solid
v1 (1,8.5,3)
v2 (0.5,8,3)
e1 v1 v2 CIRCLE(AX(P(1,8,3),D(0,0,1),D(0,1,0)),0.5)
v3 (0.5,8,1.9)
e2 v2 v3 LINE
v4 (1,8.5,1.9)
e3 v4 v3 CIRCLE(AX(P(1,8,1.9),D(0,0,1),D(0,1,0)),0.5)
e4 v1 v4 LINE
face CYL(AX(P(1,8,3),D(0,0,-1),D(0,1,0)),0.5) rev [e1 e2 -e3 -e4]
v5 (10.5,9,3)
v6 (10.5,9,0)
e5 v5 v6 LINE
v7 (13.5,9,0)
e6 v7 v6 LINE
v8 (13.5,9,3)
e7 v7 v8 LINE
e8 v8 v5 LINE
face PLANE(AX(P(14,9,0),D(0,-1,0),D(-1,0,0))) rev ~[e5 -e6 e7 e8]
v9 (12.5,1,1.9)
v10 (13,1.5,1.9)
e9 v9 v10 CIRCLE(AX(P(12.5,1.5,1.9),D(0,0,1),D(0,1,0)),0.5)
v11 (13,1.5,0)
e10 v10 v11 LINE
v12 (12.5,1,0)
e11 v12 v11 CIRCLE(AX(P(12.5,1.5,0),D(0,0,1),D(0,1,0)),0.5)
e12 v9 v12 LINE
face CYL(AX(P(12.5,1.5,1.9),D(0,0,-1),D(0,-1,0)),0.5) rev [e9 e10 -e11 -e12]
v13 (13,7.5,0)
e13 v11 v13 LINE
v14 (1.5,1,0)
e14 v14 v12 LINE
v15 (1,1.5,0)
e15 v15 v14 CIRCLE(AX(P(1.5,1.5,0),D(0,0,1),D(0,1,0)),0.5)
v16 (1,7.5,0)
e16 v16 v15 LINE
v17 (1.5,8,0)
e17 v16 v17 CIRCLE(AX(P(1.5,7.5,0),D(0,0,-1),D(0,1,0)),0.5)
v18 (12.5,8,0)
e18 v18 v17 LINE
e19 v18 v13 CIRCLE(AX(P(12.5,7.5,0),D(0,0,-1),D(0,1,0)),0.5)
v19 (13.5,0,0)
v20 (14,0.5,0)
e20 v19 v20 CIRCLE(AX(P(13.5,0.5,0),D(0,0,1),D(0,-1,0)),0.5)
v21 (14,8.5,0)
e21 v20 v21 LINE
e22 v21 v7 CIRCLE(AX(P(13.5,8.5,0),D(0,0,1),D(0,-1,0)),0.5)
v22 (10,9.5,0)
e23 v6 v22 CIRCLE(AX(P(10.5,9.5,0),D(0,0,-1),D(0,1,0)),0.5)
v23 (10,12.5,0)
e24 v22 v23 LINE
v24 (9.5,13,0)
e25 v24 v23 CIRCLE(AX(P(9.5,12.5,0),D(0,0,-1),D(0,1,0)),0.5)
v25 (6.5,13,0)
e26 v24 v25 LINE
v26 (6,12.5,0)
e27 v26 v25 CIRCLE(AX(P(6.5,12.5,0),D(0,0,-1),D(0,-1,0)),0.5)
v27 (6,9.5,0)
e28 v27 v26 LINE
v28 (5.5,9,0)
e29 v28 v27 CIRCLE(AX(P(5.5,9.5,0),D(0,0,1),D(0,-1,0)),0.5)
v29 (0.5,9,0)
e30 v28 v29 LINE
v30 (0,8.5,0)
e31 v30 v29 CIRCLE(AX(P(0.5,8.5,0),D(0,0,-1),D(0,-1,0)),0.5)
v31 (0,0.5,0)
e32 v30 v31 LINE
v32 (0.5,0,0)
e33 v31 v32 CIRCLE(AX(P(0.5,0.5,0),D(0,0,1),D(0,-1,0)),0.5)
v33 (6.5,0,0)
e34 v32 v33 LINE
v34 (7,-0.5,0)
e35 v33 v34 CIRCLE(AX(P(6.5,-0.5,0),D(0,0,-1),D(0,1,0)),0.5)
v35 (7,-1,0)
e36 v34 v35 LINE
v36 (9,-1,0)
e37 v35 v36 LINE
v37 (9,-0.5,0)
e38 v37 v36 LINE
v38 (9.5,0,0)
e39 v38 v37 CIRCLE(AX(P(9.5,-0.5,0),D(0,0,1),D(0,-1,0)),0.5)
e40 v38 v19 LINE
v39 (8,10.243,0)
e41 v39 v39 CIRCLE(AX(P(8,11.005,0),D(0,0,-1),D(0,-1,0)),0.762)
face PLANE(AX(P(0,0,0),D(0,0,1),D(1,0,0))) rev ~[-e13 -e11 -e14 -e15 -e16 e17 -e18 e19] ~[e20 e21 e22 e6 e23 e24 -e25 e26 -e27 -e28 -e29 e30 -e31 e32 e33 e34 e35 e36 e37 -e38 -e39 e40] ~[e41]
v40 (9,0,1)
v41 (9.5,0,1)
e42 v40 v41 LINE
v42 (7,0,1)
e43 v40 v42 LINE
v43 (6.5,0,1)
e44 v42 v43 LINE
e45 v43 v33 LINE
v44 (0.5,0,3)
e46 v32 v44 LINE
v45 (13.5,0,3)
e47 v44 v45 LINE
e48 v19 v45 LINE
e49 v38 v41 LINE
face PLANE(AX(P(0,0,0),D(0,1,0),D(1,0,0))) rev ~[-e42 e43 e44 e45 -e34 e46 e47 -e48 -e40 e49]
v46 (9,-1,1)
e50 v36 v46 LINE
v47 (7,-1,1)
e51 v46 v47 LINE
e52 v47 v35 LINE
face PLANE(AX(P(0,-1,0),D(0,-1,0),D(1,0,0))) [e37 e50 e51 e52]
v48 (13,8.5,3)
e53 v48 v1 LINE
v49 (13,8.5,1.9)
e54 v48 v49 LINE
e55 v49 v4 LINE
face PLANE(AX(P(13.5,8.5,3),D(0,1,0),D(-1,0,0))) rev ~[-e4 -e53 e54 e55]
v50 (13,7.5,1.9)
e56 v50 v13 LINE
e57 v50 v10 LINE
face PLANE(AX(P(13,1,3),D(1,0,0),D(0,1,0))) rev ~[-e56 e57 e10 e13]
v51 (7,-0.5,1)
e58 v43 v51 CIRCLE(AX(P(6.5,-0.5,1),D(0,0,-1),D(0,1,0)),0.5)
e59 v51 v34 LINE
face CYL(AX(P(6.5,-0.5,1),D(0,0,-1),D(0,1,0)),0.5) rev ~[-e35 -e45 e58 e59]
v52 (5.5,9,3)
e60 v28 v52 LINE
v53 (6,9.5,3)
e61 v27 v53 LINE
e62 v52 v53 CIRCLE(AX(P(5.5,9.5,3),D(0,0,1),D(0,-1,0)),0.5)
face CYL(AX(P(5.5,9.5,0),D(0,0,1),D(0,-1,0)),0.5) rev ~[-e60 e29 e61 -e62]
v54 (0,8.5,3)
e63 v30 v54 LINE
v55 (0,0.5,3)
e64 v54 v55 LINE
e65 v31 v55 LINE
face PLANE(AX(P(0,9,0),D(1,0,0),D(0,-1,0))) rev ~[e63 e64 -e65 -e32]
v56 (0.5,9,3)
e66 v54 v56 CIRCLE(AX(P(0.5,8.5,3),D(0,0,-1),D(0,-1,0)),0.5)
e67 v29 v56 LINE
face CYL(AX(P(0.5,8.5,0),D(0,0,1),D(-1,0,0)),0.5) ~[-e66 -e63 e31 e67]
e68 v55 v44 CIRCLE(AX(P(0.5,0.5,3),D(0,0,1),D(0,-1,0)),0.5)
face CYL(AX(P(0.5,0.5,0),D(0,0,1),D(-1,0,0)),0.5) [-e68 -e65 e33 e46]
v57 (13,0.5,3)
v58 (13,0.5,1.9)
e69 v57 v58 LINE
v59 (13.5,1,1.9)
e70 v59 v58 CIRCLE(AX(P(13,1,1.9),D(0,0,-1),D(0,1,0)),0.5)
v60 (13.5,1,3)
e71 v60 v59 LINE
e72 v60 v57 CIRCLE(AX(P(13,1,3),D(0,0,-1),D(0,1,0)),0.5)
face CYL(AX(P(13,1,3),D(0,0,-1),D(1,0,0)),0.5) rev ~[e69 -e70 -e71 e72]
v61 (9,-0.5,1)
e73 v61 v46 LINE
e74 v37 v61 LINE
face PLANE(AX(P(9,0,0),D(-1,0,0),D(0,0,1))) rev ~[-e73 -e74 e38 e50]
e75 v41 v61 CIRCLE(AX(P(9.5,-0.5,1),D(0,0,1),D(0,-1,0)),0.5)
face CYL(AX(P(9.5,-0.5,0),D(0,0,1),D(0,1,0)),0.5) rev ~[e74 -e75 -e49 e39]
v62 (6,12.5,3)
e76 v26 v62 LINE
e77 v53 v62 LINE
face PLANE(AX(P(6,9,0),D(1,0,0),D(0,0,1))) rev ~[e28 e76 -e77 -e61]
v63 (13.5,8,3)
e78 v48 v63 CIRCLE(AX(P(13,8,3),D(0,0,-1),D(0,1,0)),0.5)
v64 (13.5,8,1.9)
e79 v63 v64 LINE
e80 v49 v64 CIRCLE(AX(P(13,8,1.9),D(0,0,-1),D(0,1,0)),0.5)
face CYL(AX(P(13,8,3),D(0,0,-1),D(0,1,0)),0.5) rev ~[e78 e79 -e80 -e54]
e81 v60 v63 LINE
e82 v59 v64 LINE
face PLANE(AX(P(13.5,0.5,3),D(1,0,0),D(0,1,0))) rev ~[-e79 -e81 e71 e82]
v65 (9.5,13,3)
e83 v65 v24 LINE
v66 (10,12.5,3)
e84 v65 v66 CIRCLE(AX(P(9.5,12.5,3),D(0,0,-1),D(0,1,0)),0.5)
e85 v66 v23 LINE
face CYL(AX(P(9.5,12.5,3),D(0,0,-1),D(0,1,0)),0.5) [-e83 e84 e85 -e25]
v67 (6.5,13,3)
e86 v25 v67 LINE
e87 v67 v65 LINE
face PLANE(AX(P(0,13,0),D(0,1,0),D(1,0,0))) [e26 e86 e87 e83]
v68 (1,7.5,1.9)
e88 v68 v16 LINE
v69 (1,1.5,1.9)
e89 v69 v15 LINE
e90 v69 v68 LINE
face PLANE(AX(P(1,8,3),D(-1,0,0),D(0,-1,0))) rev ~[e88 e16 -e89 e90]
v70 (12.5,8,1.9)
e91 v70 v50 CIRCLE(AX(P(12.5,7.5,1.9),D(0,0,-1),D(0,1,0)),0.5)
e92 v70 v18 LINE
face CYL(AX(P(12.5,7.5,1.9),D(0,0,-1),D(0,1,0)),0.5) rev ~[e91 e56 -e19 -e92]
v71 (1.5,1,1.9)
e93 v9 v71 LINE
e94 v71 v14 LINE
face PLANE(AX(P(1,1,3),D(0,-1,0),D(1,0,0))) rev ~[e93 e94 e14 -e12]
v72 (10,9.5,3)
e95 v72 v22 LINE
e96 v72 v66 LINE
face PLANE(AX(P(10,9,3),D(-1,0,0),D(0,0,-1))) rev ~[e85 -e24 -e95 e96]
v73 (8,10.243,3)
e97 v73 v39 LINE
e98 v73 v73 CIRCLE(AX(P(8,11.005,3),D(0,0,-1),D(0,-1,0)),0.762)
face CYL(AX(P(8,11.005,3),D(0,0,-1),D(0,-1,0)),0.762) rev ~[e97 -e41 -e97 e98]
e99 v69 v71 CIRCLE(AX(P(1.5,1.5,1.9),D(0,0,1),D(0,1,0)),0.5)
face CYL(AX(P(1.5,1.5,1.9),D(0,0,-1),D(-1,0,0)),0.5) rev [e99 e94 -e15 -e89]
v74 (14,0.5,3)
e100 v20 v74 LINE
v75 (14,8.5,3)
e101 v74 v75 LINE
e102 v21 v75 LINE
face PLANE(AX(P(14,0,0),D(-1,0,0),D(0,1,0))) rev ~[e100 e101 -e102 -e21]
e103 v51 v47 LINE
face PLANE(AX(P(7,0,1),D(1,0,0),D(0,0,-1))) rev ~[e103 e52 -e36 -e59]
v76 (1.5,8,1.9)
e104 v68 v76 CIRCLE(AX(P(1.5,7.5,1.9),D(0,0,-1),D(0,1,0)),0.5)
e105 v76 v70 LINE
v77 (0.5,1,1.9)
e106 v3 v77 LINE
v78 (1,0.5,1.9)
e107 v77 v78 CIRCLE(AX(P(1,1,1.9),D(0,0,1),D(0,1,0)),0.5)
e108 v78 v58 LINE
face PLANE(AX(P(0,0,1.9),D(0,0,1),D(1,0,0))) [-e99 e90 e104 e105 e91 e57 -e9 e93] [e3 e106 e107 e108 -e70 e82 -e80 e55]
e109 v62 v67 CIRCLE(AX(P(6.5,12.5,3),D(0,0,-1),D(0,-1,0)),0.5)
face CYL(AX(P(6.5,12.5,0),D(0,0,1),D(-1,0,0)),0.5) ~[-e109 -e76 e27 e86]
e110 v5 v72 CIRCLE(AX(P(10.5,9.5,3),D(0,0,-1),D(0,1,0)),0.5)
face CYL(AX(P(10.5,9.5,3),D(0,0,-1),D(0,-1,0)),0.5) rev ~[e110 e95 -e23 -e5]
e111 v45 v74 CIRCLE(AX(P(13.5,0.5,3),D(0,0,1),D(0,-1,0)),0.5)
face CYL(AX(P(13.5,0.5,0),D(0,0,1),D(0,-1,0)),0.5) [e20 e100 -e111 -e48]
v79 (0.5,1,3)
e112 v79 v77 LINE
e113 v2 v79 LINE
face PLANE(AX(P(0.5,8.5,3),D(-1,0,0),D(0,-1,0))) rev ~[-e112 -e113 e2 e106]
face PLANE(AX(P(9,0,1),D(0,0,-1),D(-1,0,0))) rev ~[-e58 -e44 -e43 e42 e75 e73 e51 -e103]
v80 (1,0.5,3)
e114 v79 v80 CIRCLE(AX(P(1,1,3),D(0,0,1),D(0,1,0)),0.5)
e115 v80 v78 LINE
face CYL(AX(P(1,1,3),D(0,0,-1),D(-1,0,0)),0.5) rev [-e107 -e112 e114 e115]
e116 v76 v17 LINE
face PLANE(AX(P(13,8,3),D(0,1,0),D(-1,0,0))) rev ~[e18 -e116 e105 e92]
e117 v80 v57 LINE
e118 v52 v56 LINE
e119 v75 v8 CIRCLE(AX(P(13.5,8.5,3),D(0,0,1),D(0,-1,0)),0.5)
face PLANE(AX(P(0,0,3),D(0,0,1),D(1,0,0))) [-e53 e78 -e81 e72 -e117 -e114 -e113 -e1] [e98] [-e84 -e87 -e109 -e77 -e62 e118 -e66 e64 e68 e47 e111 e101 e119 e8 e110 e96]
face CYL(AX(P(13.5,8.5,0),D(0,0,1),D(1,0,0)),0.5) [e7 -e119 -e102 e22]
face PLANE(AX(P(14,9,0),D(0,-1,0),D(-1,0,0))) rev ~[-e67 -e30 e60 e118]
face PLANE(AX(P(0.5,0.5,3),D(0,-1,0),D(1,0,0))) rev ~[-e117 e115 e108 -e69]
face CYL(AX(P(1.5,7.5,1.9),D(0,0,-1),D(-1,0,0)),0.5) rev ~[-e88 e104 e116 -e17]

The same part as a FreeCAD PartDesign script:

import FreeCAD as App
import Part
import Sketcher


def edges_at(feature, points):
    """Names of the edges that pass closest to the given points."""
    edges = feature.Shape.Edges
    near = lambda p: min(range(len(edges)), key=lambda i: edges[i].distToShape(Part.Vertex(*p))[0])
    return sorted({f"Edge{near(p) + 1}" for p in points})


def add_polygon(sketch, points):
    """Adds a closed chain of lines whose ends are joined by coincident constraints."""
    first, n = sketch.GeometryCount, len(points)
    for a, b in zip(points, points[1:] + points[:1]):
        sketch.addGeometry(Part.LineSegment(App.Vector(*a, 0), App.Vector(*b, 0)), False)
    for i in range(n):
        sketch.addConstraint(Sketcher.Constraint("Coincident", first + i, 2, first + (i + 1) % n, 1))

doc = App.newDocument("Part")
body = doc.addObject("PartDesign::Body", "Body")

sketch1 = body.newObject("Sketcher::SketchObject", "Sketch")
sketch1.AttachmentSupport = (doc.getObject("XY_Plane"), [""])
sketch1.MapMode = "FlatFace"
add_polygon(sketch1, [(0, 9), (0, 0), (14, 0), (14, 9)])
sketch1.addConstraint([
    Sketcher.Constraint("Vertical", 0),
    Sketcher.Constraint("Horizontal", 1),
    Sketcher.Constraint("Vertical", 2),
    Sketcher.Constraint("Horizontal", 3),
    Sketcher.Constraint("Coincident", 0, 2, -1, 1),
    Sketcher.Constraint("DistanceX", 1, 1, 1, 2, 14.0),
    Sketcher.Constraint("DistanceY", 0, 2, 0, 1, 9.0),
])
pad1 = body.newObject("PartDesign::Pad", "Pad")
pad1.Profile = sketch1
pad1.Length = 3

sketch2 = body.newObject("Sketcher::SketchObject", "Sketch001")
sketch2.AttachmentSupport = (doc.getObject("XY_Plane"), [""])
sketch2.MapMode = "FlatFace"
sketch2.AttachmentOffset = App.Placement(App.Vector(0, 0, 3), App.Rotation())
add_polygon(sketch2, [(1, 8), (1, 1), (13, 1), (13, 8)])
sketch2.addConstraint([
    Sketcher.Constraint("Vertical", 0),
    Sketcher.Constraint("Horizontal", 1),
    Sketcher.Constraint("Vertical", 2),
    Sketcher.Constraint("Horizontal", 3),
    Sketcher.Constraint("DistanceX", 1, 1, 1, 2, 12.0),
    Sketcher.Constraint("DistanceY", 0, 2, 0, 1, 7.0),
    Sketcher.Constraint("DistanceX", -1, 1, 0, 2, 1.0),
    Sketcher.Constraint("DistanceY", -1, 1, 0, 2, 1.0),
])
pocket1 = body.newObject("PartDesign::Pocket", "Pocket")
pocket1.Profile = sketch2
pocket1.Type = "ThroughAll"

sketch3 = body.newObject("Sketcher::SketchObject", "Sketch002")
sketch3.AttachmentSupport = (doc.getObject("XZ_Plane"), [""])
sketch3.MapMode = "FlatFace"
sketch3.AttachmentOffset = App.Placement(App.Vector(0, 0, -9), App.Rotation())
add_polygon(sketch3, [(6, 0), (6, 3), (10, 3), (10, 0)])
sketch3.addConstraint([
    Sketcher.Constraint("Vertical", 0),
    Sketcher.Constraint("Horizontal", 1),
    Sketcher.Constraint("Vertical", 2),
    Sketcher.Constraint("Horizontal", 3),
    Sketcher.Constraint("PointOnObject", 2, 2, -1),
    Sketcher.Constraint("DistanceX", 1, 1, 1, 2, 4.0),
    Sketcher.Constraint("DistanceX", -1, 1, 0, 2, 6.0),
    Sketcher.Constraint("DistanceY", 0, 1, 0, 2, 3.0),
])
pad2 = body.newObject("PartDesign::Pad", "Pad001")
pad2.Profile = sketch3
pad2.Length = 4
pad2.Reversed = True

sketch4 = body.newObject("Sketcher::SketchObject", "Sketch003")
sketch4.AttachmentSupport = (doc.getObject("XY_Plane"), [""])
sketch4.MapMode = "FlatFace"
sketch4.AttachmentOffset = App.Placement(App.Vector(0, 0, 3), App.Rotation())
add_polygon(sketch4, [(14, 8), (0, 8), (0, 0), (14, 0)])
add_polygon(sketch4, [(1, 8), (13, 8), (13, 1), (1, 1)])
sketch4.addConstraint([
    Sketcher.Constraint("Horizontal", 0),
    Sketcher.Constraint("Vertical", 1),
    Sketcher.Constraint("Horizontal", 2),
    Sketcher.Constraint("Vertical", 3),
    Sketcher.Constraint("Horizontal", 4),
    Sketcher.Constraint("Vertical", 5),
    Sketcher.Constraint("Horizontal", 6),
    Sketcher.Constraint("Vertical", 7),
    Sketcher.Constraint("DistanceX", -1, 1, 0, 2, 0.5),
    Sketcher.Constraint("DistanceY", -1, 1, 1, 2, 0.5),
    Sketcher.Constraint("DistanceX", 4, 2, 3, 2, 0.5),
    Sketcher.Constraint("DistanceY", 4, 2, 3, 2, 0.5),
    Sketcher.Constraint("DistanceY", 2, 2, 5, 2, 0.5),
    Sketcher.Constraint("DistanceX", 1, 2, 6, 2, 0.5),
    Sketcher.Constraint("DistanceX", 0, 2, 0, 1, 13.0),
    Sketcher.Constraint("DistanceY", 1, 2, 1, 1, 8.0),
])
pocket2 = body.newObject("PartDesign::Pocket", "Pocket001")
pocket2.Profile = sketch4
pocket2.Length = 1.1

sketch5 = body.newObject("Sketcher::SketchObject", "Sketch004")
sketch5.AttachmentSupport = (doc.getObject("XY_Plane"), [""])
sketch5.MapMode = "FlatFace"
sketch5.AttachmentOffset = App.Placement(App.Vector(0, 0, 3), App.Rotation())
sketch5.addGeometry(Part.Circle(App.Vector(8, 11, 0), App.Vector(0, 0, 1), 0.8), False)
sketch5.addConstraint([
    Sketcher.Constraint("Diameter", 0, 1.524),
    Sketcher.Constraint("DistanceX", -1, 1, 0, 3, 8.0),
    Sketcher.Constraint("DistanceY", -1, 1, 0, 3, 11.005),
])
doc.recompute()
hole = body.newObject("PartDesign::Hole", "Hole")
hole.Profile = sketch5
hole.ThreadType = "None"
hole.Diameter = 1.524
hole.DepthType = "ThroughAll"

sketch6 = body.newObject("Sketcher::SketchObject", "Sketch005")
sketch6.AttachmentSupport = (doc.getObject("XZ_Plane"), [""])
sketch6.MapMode = "FlatFace"
add_polygon(sketch6, [(7, 1), (7, 0), (9, 0), (9, 1)])
sketch6.addConstraint([
    Sketcher.Constraint("Vertical", 0),
    Sketcher.Constraint("Horizontal", 1),
    Sketcher.Constraint("Vertical", 2),
    Sketcher.Constraint("Horizontal", 3),
    Sketcher.Constraint("PointOnObject", 0, 2, -1),
    Sketcher.Constraint("DistanceX", 1, 1, 1, 2, 2.0),
    Sketcher.Constraint("DistanceY", 0, 2, 0, 1, 1.0),
    Sketcher.Constraint("DistanceX", -1, 1, 0, 2, 7.0),
])
pad3 = body.newObject("PartDesign::Pad", "Pad002")
pad3.Profile = sketch6
pad3.Length = 1
doc.recompute()

fillet = body.newObject("PartDesign::Fillet", "Fillet")
fillet.Base = (pad3, edges_at(pad3, [
    (0.5, 0.5, 2.45),
    (1, 1, 0.95),
    (1, 8, 0.95),
    (0.5, 8.5, 2.45),
    (13, 8, 0.95),
    (13.5, 8.5, 2.45),
    (13, 1, 0.95),
    (13.5, 0.5, 2.45),
    (14, 0, 1.5),
    (9, 0, 0.5),
    (0, 0, 1.5),
    (7, 0, 0.5),
    (0, 9, 1.5),
    (6, 9, 1.5),
    (6, 13, 1.5),
    (10, 13, 1.5),
    (10, 9, 1.5),
    (14, 9, 1.5),
]))
fillet.Radius = 0.5

doc.recompute()
